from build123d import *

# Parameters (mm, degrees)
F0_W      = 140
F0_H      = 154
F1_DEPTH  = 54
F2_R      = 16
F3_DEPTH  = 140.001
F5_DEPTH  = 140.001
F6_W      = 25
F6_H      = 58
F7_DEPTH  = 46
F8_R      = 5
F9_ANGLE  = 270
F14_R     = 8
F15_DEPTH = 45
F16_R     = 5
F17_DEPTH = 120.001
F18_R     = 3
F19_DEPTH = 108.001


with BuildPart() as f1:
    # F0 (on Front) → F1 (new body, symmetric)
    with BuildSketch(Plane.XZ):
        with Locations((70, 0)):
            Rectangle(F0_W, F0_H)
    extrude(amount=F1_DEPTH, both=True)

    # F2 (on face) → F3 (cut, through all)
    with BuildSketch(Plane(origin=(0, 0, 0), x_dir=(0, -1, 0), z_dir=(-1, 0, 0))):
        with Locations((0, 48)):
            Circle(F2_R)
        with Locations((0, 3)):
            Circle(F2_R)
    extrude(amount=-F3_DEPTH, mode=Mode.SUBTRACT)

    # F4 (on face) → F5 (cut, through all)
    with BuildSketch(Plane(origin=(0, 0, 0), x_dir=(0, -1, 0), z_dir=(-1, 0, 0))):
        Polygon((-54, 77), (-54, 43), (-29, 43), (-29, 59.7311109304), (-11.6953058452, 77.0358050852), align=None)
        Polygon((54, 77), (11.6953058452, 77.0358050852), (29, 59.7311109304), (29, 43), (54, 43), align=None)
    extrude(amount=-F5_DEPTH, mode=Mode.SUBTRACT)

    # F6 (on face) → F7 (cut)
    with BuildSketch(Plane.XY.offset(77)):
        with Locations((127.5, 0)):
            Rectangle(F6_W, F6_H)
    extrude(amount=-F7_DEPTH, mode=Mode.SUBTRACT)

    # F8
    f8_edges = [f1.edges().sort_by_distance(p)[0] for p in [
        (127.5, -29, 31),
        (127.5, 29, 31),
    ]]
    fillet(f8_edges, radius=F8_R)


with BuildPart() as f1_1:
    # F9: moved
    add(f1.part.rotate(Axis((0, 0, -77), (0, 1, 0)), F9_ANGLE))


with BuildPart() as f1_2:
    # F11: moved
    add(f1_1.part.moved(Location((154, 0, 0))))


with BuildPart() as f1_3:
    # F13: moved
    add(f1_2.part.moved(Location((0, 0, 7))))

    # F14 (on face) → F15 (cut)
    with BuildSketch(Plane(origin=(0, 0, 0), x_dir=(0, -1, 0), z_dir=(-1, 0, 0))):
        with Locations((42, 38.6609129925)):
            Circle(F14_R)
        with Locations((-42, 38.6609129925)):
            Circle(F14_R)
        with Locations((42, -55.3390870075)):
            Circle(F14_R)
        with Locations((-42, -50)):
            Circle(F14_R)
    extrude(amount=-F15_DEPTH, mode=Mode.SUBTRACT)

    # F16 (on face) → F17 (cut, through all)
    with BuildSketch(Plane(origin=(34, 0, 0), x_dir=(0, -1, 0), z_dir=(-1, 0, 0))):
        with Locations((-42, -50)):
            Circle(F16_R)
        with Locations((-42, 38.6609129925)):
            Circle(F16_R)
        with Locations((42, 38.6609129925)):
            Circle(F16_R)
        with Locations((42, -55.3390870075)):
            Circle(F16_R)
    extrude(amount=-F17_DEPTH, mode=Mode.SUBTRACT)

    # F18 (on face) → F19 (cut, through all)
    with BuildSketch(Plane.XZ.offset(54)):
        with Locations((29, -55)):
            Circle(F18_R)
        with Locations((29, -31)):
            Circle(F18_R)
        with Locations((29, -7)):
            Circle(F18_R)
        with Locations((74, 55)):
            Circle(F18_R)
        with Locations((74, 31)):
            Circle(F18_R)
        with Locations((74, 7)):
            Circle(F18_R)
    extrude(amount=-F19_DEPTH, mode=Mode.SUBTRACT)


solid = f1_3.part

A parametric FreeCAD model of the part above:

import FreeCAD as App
import Part
import Sketcher
from FreeCAD import Vector
Q = App.Units.Quantity


def edges_at(feature, points):
    """Names of the edges that pass closest to the given points."""
    edges = feature.Shape.Edges
    near = lambda p: min(range(len(edges)), key=lambda i: edges[i].distToShape(Part.Vertex(*p))[0])
    return sorted({f"Edge{near(p) + 1}" for p in points})


def add_polygon(sketch, points):
    """Adds a closed chain of lines whose ends are joined by coincident constraints."""
    first, n = sketch.GeometryCount, len(points)
    for a, b in zip(points, points[1:] + points[:1]):
        sketch.addGeometry(Part.LineSegment(App.Vector(*a, 0), App.Vector(*b, 0)), False)
    for i in range(n):
        sketch.addConstraint(Sketcher.Constraint("Coincident", first + i, 2, first + (i + 1) % n, 1))

doc = App.newDocument("Part")
body = doc.addObject("PartDesign::Body", "Body")

# Sketch on XZ plane
sketch1 = body.newObject("Sketcher::SketchObject", "Sketch")
sketch1.AttachmentSupport = (doc.getObject("XZ_Plane"), [""])
sketch1.MapMode = "FlatFace"
add_polygon(sketch1, [(0, 77), (0, -77), (140, -77), (140, 77)])  # lines 0-3
sketch1.addConstraint([
    Sketcher.Constraint("Vertical", 0),
    Sketcher.Constraint("Horizontal", 1),
    Sketcher.Constraint("Vertical", 2),
    Sketcher.Constraint("Horizontal", 3),
    Sketcher.Constraint("Symmetric", 0, 2, 3, 2, -1, 1),
    Sketcher.Constraint("DistanceX", 1, 1, 1, 2, Q("140 mm")),
    Sketcher.Constraint("DistanceY", 0, 2, 0, 1, Q("154 mm")),
])
pad1 = body.newObject("PartDesign::Pad", "Pad")
pad1.Profile = sketch1
pad1.Length = 108
pad1.Midplane = True

# Sketch on YZ plane
sketch2 = body.newObject("Sketcher::SketchObject", "Sketch001")
sketch2.AttachmentSupport = (doc.getObject("YZ_Plane"), [""])
sketch2.MapMode = "FlatFace"
sketch2.addGeometry([
    Part.Circle(Vector(0, 48, 0), Vector(0, 0, 1), 16),
    Part.Circle(Vector(0, 3, 0), Vector(0, 0, 1), 16),
], False)
sketch2.addConstraint([
    Sketcher.Constraint("Equal", 0, 1),
    Sketcher.Constraint("PointOnObject", 0, 3, -2),
    Sketcher.Constraint("PointOnObject", 1, 3, -2),
    Sketcher.Constraint("Diameter", 0, Q("32 mm")),
    Sketcher.Constraint("DistanceY", -1, 1, 0, 3, Q("48 mm")),
    Sketcher.Constraint("DistanceY", -1, 1, 1, 3, Q("3 mm")),
])
pocket1 = body.newObject("PartDesign::Pocket", "Pocket")
pocket1.Profile = sketch2
pocket1.Type = "ThroughAll"
pocket1.Reversed = True

# Sketch on YZ plane
sketch3 = body.newObject("Sketcher::SketchObject", "Sketch002")
sketch3.AttachmentSupport = (doc.getObject("YZ_Plane"), [""])
sketch3.MapMode = "FlatFace"
add_polygon(sketch3, [(54, 77), (54, 43), (29, 43), (29, 60), (12, 77)])  # lines 0-4
add_polygon(sketch3, [(-54, 77), (-12, 77), (-29, 60), (-29, 43), (-54, 43)])  # lines 5-9
sketch3.addConstraint([
    Sketcher.Constraint("Vertical", 0),
    Sketcher.Constraint("Horizontal", 1),
    Sketcher.Constraint("Vertical", 2),
    Sketcher.Constraint("Vertical", 7),
    Sketcher.Constraint("Horizontal", 8),
    Sketcher.Constraint("Vertical", 9),
    Sketcher.Constraint("Symmetric", 3, 2, 5, 2, -2),
    Sketcher.Constraint("Symmetric", 2, 2, 6, 2, -2),
    Sketcher.Constraint("Symmetric", 0, 2, 8, 2, -2),
    Sketcher.Constraint("Perpendicular", 3, 6),
    Sketcher.Constraint("Horizontal", 4, 2, 9, 2),
    Sketcher.Constraint("DistanceX", 1, 2, 1, 1, Q("25 mm")),
    Sketcher.Constraint("DistanceY", 0, 2, 0, 1, Q("34 mm")),
    Sketcher.Constraint("DistanceX", -1, 1, 0, 2, Q("54 mm")),
    Sketcher.Constraint("DistanceY", -1, 1, 0, 2, Q("43 mm")),
    Sketcher.Constraint("DistanceY", 2, 1, 2, 2, Q("16.731111 mm")),
    Sketcher.Constraint("Distance", 4, Q("42.304709 mm")),
])
pocket2 = body.newObject("PartDesign::Pocket", "Pocket001")
pocket2.Profile = sketch3
pocket2.Type = "ThroughAll"
pocket2.Reversed = True

# Sketch on XY plane
sketch4 = body.newObject("Sketcher::SketchObject", "Sketch003")
sketch4.AttachmentSupport = (doc.getObject("XY_Plane"), [""])
sketch4.MapMode = "FlatFace"
sketch4.AttachmentOffset = App.Placement(Vector(0, 0, 77), App.Rotation())
add_polygon(sketch4, [(115, 29), (115, -29), (140, -29), (140, 29)])  # lines 0-3
sketch4.addConstraint([
    Sketcher.Constraint("Vertical", 0),
    Sketcher.Constraint("Horizontal", 1),
    Sketcher.Constraint("Vertical", 2),
    Sketcher.Constraint("Horizontal", 3),
    Sketcher.Constraint("DistanceX", 1, 1, 1, 2, Q("25 mm")),
    Sketcher.Constraint("DistanceY", 0, 2, 0, 1, Q("58 mm")),
    Sketcher.Constraint("DistanceX", -1, 1, 0, 2, Q("115 mm")),
    Sketcher.Constraint("DistanceY", 0, 2, -1, 1, Q("29 mm")),
])
pocket3 = body.newObject("PartDesign::Pocket", "Pocket002")
pocket3.Profile = sketch4
pocket3.Length = 46
doc.recompute()

fillet = body.newObject("PartDesign::Fillet", "Fillet")
fillet.Base = (pocket3, edges_at(pocket3, [(127.5, -29, 31), (127.5, 29, 31)]))
fillet.Radius = 5
body2 = doc.addObject("PartDesign::Body", "Body001")
doc.recompute()

body.Placement = App.Placement(Vector(-77, 0, -77), App.Rotation(Vector(0, 1, 0), 270))
boolean = body2.newObject("PartDesign::Boolean", "Boolean")
boolean.Type = "Fuse"
boolean.addObjects([body])
body3 = doc.addObject("PartDesign::Body", "Body002")
doc.recompute()

body2.Placement = App.Placement(Vector(154, 0, 0), App.Rotation(Vector(0, 0, 1), 0))
boolean2 = body3.newObject("PartDesign::Boolean", "Boolean001")
boolean2.Type = "Fuse"
boolean2.addObjects([body2])
body4 = doc.addObject("PartDesign::Body", "Body003")
doc.recompute()

body3.Placement = App.Placement(Vector(0, 0, 7), App.Rotation(Vector(0, 0, 1), 0))
boolean3 = body4.newObject("PartDesign::Boolean", "Boolean002")
boolean3.Type = "Fuse"
boolean3.addObjects([body3])

# Sketch on YZ plane
sketch5 = body4.newObject("Sketcher::SketchObject", "Sketch004")
sketch5.AttachmentSupport = (doc.getObject("YZ_Plane003"), [""])
sketch5.MapMode = "FlatFace"
sketch5.addGeometry([
    Part.Circle(Vector(-42, 39, 0), Vector(0, 0, 1), 8),
    Part.Circle(Vector(42, 39, 0), Vector(0, 0, 1), 8),
    Part.Circle(Vector(-42, -55, 0), Vector(0, 0, 1), 8),
    Part.Circle(Vector(42, -50, 0), Vector(0, 0, 1), 8),
], False)
sketch5.addConstraint([
    Sketcher.Constraint("Equal", 0, 1),
    Sketcher.Constraint("Equal", 1, 2),
    Sketcher.Constraint("Equal", 2, 3),
    Sketcher.Constraint("Symmetric", 0, 3, 1, 3, -2),
    Sketcher.Constraint("Vertical", 0, 3, 2, 3),
    Sketcher.Constraint("Vertical", 1, 3, 3, 3),
    Sketcher.Constraint("Diameter", 0, Q("16 mm")),
    Sketcher.Constraint("DistanceX", 0, 3, -1, 1, Q("42 mm")),
    Sketcher.Constraint("DistanceY", 3, 3, -1, 1, Q("50 mm")),
    Sketcher.Constraint("DistanceY", 2, 3, 0, 3, Q("94 mm")),
    Sketcher.Constraint("DistanceY", -1, 1, 0, 3, Q("38.660913 mm")),
])
pocket4 = body4.newObject("PartDesign::Pocket", "Pocket003")
pocket4.Profile = sketch5
pocket4.Length = 45
pocket4.Reversed = True

# Sketch on YZ plane
sketch6 = body4.newObject("Sketcher::SketchObject", "Sketch005")
sketch6.AttachmentSupport = (doc.getObject("YZ_Plane003"), [""])
sketch6.MapMode = "FlatFace"
sketch6.AttachmentOffset = App.Placement(Vector(0, 0, 34), App.Rotation())
sketch6.addGeometry([
    Part.Circle(Vector(42, -50, 0), Vector(0, 0, 1), 5),
    Part.Circle(Vector(42, 39, 0), Vector(0, 0, 1), 5),
    Part.Circle(Vector(-42, 39, 0), Vector(0, 0, 1), 5),
    Part.Circle(Vector(-42, -55, 0), Vector(0, 0, 1), 5),
], False)
sketch6.addConstraint([
    Sketcher.Constraint("Equal", 0, 1),
    Sketcher.Constraint("Equal", 1, 2),
    Sketcher.Constraint("Equal", 2, 3),
    Sketcher.Constraint("Symmetric", 1, 3, 2, 3, -2),
    Sketcher.Constraint("Vertical", 0, 3, 1, 3),
    Sketcher.Constraint("Vertical", 2, 3, 3, 3),
    Sketcher.Constraint("Diameter", 0, Q("10 mm")),
    Sketcher.Constraint("DistanceX", -1, 1, 0, 3, Q("42 mm")),
    Sketcher.Constraint("DistanceY", 0, 3, -1, 1, Q("50 mm")),
    Sketcher.Constraint("DistanceY", 3, 3, 2, 3, Q("94 mm")),
    Sketcher.Constraint("DistanceY", -1, 1, 1, 3, Q("38.660913 mm")),
])
pocket5 = body4.newObject("PartDesign::Pocket", "Pocket004")
pocket5.Profile = sketch6
pocket5.Type = "ThroughAll"
pocket5.Reversed = True

# Sketch on XZ plane
sketch7 = body4.newObject("Sketcher::SketchObject", "Sketch006")
sketch7.AttachmentSupport = (doc.getObject("XZ_Plane003"), [""])
sketch7.MapMode = "FlatFace"
sketch7.AttachmentOffset = App.Placement(Vector(0, 0, 54), App.Rotation())
sketch7.addGeometry([
    Part.Circle(Vector(29, -55, 0), Vector(0, 0, 1), 3),  # 0
    Part.Circle(Vector(29, -31, 0), Vector(0, 0, 1), 3),  # 1
    Part.Circle(Vector(29, -7, 0), Vector(0, 0, 1), 3),  # 2
    Part.Circle(Vector(74, 55, 0), Vector(0, 0, 1), 3),  # 3
    Part.Circle(Vector(74, 31, 0), Vector(0, 0, 1), 3),  # 4
    Part.Circle(Vector(74, 7, 0), Vector(0, 0, 1), 3),  # 5
], False)
sketch7.addConstraint([
    Sketcher.Constraint("Equal", 0, 1),
    Sketcher.Constraint("Equal", 1, 2),
    Sketcher.Constraint("Equal", 2, 3),
    Sketcher.Constraint("Equal", 3, 4),
    Sketcher.Constraint("Equal", 4, 5),
    Sketcher.Constraint("Vertical", 0, 3, 1, 3),
    Sketcher.Constraint("Vertical", 1, 3, 2, 3),
    Sketcher.Constraint("Vertical", 3, 3, 4, 3),
    Sketcher.Constraint("Vertical", 4, 3, 5, 3),
    Sketcher.Constraint("Diameter", 0, Q("6 mm")),
    Sketcher.Constraint("DistanceX", -1, 1, 0, 3, Q("29 mm")),
    Sketcher.Constraint("DistanceY", 0, 3, -1, 1, Q("55 mm")),
    Sketcher.Constraint("DistanceY", 1, 3, -1, 1, Q("31 mm")),
    Sketcher.Constraint("DistanceY", 2, 3, -1, 1, Q("7 mm")),
    Sketcher.Constraint("DistanceX", -1, 1, 3, 3, Q("74 mm")),
    Sketcher.Constraint("DistanceY", -1, 1, 3, 3, Q("55 mm")),
    Sketcher.Constraint("DistanceY", -1, 1, 4, 3, Q("31 mm")),
    Sketcher.Constraint("DistanceY", -1, 1, 5, 3, Q("7 mm")),
])
pocket6 = body4.newObject("PartDesign::Pocket", "Pocket005")
pocket6.Profile = sketch7
pocket6.Type = "ThroughAll"

doc.recompute()
